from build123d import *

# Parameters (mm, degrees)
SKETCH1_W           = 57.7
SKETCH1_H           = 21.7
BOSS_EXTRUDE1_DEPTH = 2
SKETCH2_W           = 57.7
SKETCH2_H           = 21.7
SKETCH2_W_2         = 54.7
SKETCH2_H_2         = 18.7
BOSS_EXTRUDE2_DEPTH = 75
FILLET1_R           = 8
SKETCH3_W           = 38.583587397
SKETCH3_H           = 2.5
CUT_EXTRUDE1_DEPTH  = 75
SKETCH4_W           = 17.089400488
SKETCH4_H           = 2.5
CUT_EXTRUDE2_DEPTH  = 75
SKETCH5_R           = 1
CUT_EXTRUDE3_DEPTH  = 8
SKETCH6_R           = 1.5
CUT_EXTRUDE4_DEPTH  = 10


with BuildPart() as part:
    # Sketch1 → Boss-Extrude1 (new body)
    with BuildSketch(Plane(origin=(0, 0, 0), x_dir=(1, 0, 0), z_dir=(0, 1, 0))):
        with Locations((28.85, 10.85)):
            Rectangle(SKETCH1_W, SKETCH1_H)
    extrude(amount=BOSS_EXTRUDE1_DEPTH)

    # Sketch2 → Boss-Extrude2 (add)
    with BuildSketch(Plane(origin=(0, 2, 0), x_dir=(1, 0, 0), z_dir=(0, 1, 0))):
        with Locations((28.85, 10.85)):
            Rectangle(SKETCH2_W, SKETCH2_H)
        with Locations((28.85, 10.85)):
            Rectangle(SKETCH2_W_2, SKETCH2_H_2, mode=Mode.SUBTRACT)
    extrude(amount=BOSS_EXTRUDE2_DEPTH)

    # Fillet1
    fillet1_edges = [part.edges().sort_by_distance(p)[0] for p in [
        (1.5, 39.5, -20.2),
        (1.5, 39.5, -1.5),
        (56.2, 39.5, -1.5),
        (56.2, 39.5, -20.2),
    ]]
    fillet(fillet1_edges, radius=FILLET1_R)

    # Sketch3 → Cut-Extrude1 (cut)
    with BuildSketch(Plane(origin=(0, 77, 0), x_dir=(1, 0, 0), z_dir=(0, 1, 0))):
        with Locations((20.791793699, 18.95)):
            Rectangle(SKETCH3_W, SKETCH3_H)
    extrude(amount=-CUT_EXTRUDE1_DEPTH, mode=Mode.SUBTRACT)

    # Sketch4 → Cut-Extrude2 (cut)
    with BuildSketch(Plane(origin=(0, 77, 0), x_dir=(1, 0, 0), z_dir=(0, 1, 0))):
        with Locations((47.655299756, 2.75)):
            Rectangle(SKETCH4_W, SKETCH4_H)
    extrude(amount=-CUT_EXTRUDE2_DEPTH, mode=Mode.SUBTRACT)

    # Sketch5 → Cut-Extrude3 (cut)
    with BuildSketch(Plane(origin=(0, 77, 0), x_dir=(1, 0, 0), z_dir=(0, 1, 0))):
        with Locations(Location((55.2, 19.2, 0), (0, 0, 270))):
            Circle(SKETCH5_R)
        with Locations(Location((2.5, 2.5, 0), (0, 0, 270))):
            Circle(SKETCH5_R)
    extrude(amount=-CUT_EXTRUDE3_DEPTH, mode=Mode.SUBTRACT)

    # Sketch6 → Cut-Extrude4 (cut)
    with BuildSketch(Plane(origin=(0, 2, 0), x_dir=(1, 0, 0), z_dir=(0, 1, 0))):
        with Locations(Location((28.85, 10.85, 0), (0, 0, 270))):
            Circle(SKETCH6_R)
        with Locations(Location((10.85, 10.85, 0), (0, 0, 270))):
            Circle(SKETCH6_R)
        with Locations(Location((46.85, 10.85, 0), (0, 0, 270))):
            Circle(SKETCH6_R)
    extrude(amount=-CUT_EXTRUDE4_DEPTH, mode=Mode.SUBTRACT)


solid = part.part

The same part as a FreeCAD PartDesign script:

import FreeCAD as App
import Part
import Sketcher
Q = App.Units.Quantity


def edges_at(feature, points):
    """Names of the edges that pass closest to the given points."""
    edges = feature.Shape.Edges
    near = lambda p: min(range(len(edges)), key=lambda i: edges[i].distToShape(Part.Vertex(*p))[0])
    return sorted({f"Edge{near(p) + 1}" for p in points})

doc = App.newDocument("Part")
body = doc.addObject("PartDesign::Body", "Body")

# Sketch on XZ plane
sketch1 = body.newObject("Sketcher::SketchObject", "Sketch")
sketch1.AttachmentSupport = (doc.getObject("XZ_Plane"), [""])
sketch1.MapMode = "FlatFace"
sketch1.addGeometry([
    Part.LineSegment(App.Vector(0, -22, 0), App.Vector(0, 0, 0)),
    Part.LineSegment(App.Vector(0, 0, 0), App.Vector(58, 0, 0)),
    Part.LineSegment(App.Vector(58, 0, 0), App.Vector(58, -22, 0)),
    Part.LineSegment(App.Vector(58, -22, 0), App.Vector(0, -22, 0)),
], False)
sketch1.addConstraint([
    Sketcher.Constraint("Coincident", 0, 2, 1, 1),
    Sketcher.Constraint("Coincident", 1, 2, 2, 1),
    Sketcher.Constraint("Coincident", 2, 2, 3, 1),
    Sketcher.Constraint("Coincident", 3, 2, 0, 1),
    Sketcher.Constraint("Vertical", 0),
    Sketcher.Constraint("Horizontal", 1),
    Sketcher.Constraint("Vertical", 2),
    Sketcher.Constraint("Horizontal", 3),
    Sketcher.Constraint("Coincident", 0, 2, -1, 1),
    Sketcher.Constraint("DistanceX", 1, 1, 1, 2, Q("57.7 mm")),
    Sketcher.Constraint("DistanceY", 0, 1, 0, 2, Q("21.7 mm")),
])
pad1 = body.newObject("PartDesign::Pad", "Pad")
pad1.Profile = sketch1
pad1.Length = 2
pad1.Reversed = True

# Sketch on XZ plane
sketch2 = body.newObject("Sketcher::SketchObject", "Sketch001")
sketch2.AttachmentSupport = (doc.getObject("XZ_Plane"), [""])
sketch2.MapMode = "FlatFace"
sketch2.AttachmentOffset = App.Placement(App.Vector(0, 0, -2), App.Rotation())
sketch2.addGeometry([
    Part.LineSegment(App.Vector(0, -22, 0), App.Vector(0, 0, 0)),  # 0
    Part.LineSegment(App.Vector(0, 0, 0), App.Vector(58, 0, 0)),  # 1
    Part.LineSegment(App.Vector(58, 0, 0), App.Vector(58, -22, 0)),  # 2
    Part.LineSegment(App.Vector(58, -22, 0), App.Vector(0, -22, 0)),  # 3
    Part.LineSegment(App.Vector(56, -2, 0), App.Vector(2, -2, 0)),  # 4
    Part.LineSegment(App.Vector(2, -2, 0), App.Vector(2, -20, 0)),  # 5
    Part.LineSegment(App.Vector(2, -20, 0), App.Vector(56, -20, 0)),  # 6
    Part.LineSegment(App.Vector(56, -20, 0), App.Vector(56, -2, 0)),  # 7
], False)
sketch2.addConstraint([
    Sketcher.Constraint("Coincident", 0, 2, 1, 1),
    Sketcher.Constraint("Coincident", 1, 2, 2, 1),
    Sketcher.Constraint("Coincident", 2, 2, 3, 1),
    Sketcher.Constraint("Coincident", 3, 2, 0, 1),
    Sketcher.Constraint("Coincident", 4, 2, 5, 1),
    Sketcher.Constraint("Coincident", 5, 2, 6, 1),
    Sketcher.Constraint("Coincident", 6, 2, 7, 1),
    Sketcher.Constraint("Coincident", 7, 2, 4, 1),
    Sketcher.Constraint("Vertical", 0),
    Sketcher.Constraint("Horizontal", 1),
    Sketcher.Constraint("Vertical", 2),
    Sketcher.Constraint("Horizontal", 3),
    Sketcher.Constraint("Horizontal", 4),
    Sketcher.Constraint("Vertical", 5),
    Sketcher.Constraint("Horizontal", 6),
    Sketcher.Constraint("Vertical", 7),
    Sketcher.Constraint("Coincident", 0, 2, -1, 1),
    Sketcher.Constraint("DistanceX", 1, 1, 1, 2, Q("57.7 mm")),
    Sketcher.Constraint("DistanceX", 4, 2, 4, 1, Q("54.7 mm")),
    Sketcher.Constraint("DistanceY", 0, 1, 0, 2, Q("21.7 mm")),
    Sketcher.Constraint("DistanceY", 5, 2, 5, 1, Q("18.7 mm")),
    Sketcher.Constraint("DistanceX", -1, 1, 4, 2, Q("1.5 mm")),
    Sketcher.Constraint("DistanceY", 4, 2, -1, 1, Q("1.5 mm")),
])
pad2 = body.newObject("PartDesign::Pad", "Pad001")
pad2.Profile = sketch2
pad2.Length = 75
pad2.Reversed = True
doc.recompute()

fillet = body.newObject("PartDesign::Fillet", "Fillet")
fillet.Base = (pad2, edges_at(pad2, [
    (1.5, 39.5, -20.2),
    (1.5, 39.5, -1.5),
    (56.2, 39.5, -1.5),
    (56.2, 39.5, -20.2),
]))
fillet.Radius = 8

# Sketch on XZ plane
sketch3 = body.newObject("Sketcher::SketchObject", "Sketch002")
sketch3.AttachmentSupport = (doc.getObject("XZ_Plane"), [""])
sketch3.MapMode = "FlatFace"
sketch3.AttachmentOffset = App.Placement(App.Vector(0, 0, -77), App.Rotation())
sketch3.addGeometry([
    Part.LineSegment(App.Vector(1.5, -20.2, 0), App.Vector(1.5, -17.7, 0)),
    Part.LineSegment(App.Vector(1.5, -17.7, 0), App.Vector(40.1, -17.7, 0)),
    Part.LineSegment(App.Vector(40.1, -17.7, 0), App.Vector(40.1, -20.2, 0)),
    Part.LineSegment(App.Vector(40.1, -20.2, 0), App.Vector(1.5, -20.2, 0)),
], False)
sketch3.addConstraint([
    Sketcher.Constraint("Coincident", 0, 2, 1, 1),
    Sketcher.Constraint("Coincident", 1, 2, 2, 1),
    Sketcher.Constraint("Coincident", 2, 2, 3, 1),
    Sketcher.Constraint("Coincident", 3, 2, 0, 1),
    Sketcher.Constraint("Vertical", 0),
    Sketcher.Constraint("Horizontal", 1),
    Sketcher.Constraint("Vertical", 2),
    Sketcher.Constraint("Horizontal", 3),
    Sketcher.Constraint("DistanceY", 0, 1, 0, 2, Q("2.5 mm")),
    Sketcher.Constraint("DistanceX", -1, 1, 0, 2, Q("1.5 mm")),
    Sketcher.Constraint("DistanceY", 0, 2, -1, 1, Q("17.7 mm")),
    Sketcher.Constraint("DistanceX", 1, 1, 1, 2, Q("38.583587 mm")),
])
pocket1 = body.newObject("PartDesign::Pocket", "Pocket")
pocket1.Profile = sketch3
pocket1.Length = 75
pocket1.Reversed = True

# Sketch on XZ plane
sketch4 = body.newObject("Sketcher::SketchObject", "Sketch003")
sketch4.AttachmentSupport = (doc.getObject("XZ_Plane"), [""])
sketch4.MapMode = "FlatFace"
sketch4.AttachmentOffset = App.Placement(App.Vector(0, 0, -77), App.Rotation())
sketch4.addGeometry([
    Part.LineSegment(App.Vector(39.1, -4, 0), App.Vector(39.1, -1.5, 0)),
    Part.LineSegment(App.Vector(39.1, -1.5, 0), App.Vector(56.2, -1.5, 0)),
    Part.LineSegment(App.Vector(56.2, -1.5, 0), App.Vector(56.2, -4, 0)),
    Part.LineSegment(App.Vector(56.2, -4, 0), App.Vector(39.1, -4, 0)),
], False)
sketch4.addConstraint([
    Sketcher.Constraint("Coincident", 0, 2, 1, 1),
    Sketcher.Constraint("Coincident", 1, 2, 2, 1),
    Sketcher.Constraint("Coincident", 2, 2, 3, 1),
    Sketcher.Constraint("Coincident", 3, 2, 0, 1),
    Sketcher.Constraint("Vertical", 0),
    Sketcher.Constraint("Horizontal", 1),
    Sketcher.Constraint("Vertical", 2),
    Sketcher.Constraint("Horizontal", 3),
    Sketcher.Constraint("DistanceY", 0, 1, 0, 2, Q("2.5 mm")),
    Sketcher.Constraint("DistanceY", 2, 2, -1, 1, Q("4 mm")),
    Sketcher.Constraint("DistanceX", -1, 1, 1, 2, Q("56.2 mm")),
    Sketcher.Constraint("DistanceX", 1, 1, 1, 2, Q("17.0894 mm")),
])
pocket2 = body.newObject("PartDesign::Pocket", "Pocket001")
pocket2.Profile = sketch4
pocket2.Length = 75
pocket2.Reversed = True

# Sketch on XZ plane
sketch5 = body.newObject("Sketcher::SketchObject", "Sketch004")
sketch5.AttachmentSupport = (doc.getObject("XZ_Plane"), [""])
sketch5.MapMode = "FlatFace"
sketch5.AttachmentOffset = App.Placement(App.Vector(0, 0, -77), App.Rotation())
sketch5.addGeometry([
    Part.Circle(App.Vector(55.2, -19.2, 0), App.Vector(0, 0, 1), 1),
    Part.Circle(App.Vector(2.5, -2.5, 0), App.Vector(0, 0, 1), 1),
], False)
sketch5.addConstraint([
    Sketcher.Constraint("Equal", 0, 1),
    Sketcher.Constraint("Diameter", 0, Q("2 mm")),
    Sketcher.Constraint("DistanceX", -1, 1, 0, 3, Q("55.2 mm")),
    Sketcher.Constraint("DistanceY", 0, 3, -1, 1, Q("19.2 mm")),
    Sketcher.Constraint("DistanceX", -1, 1, 1, 3, Q("2.5 mm")),
    Sketcher.Constraint("DistanceY", 1, 3, -1, 1, Q("2.5 mm")),
])
pocket3 = body.newObject("PartDesign::Pocket", "Pocket002")
pocket3.Profile = sketch5
pocket3.Length = 8
pocket3.Reversed = True

# Sketch on XZ plane
sketch6 = body.newObject("Sketcher::SketchObject", "Sketch005")
sketch6.AttachmentSupport = (doc.getObject("XZ_Plane"), [""])
sketch6.MapMode = "FlatFace"
sketch6.AttachmentOffset = App.Placement(App.Vector(0, 0, -2), App.Rotation())
sketch6.addGeometry([
    Part.Circle(App.Vector(28.9, -10.8, 0), App.Vector(0, 0, 1), 1.5),
    Part.Circle(App.Vector(10.8, -10.8, 0), App.Vector(0, 0, 1), 1.5),
    Part.Circle(App.Vector(46.9, -10.8, 0), App.Vector(0, 0, 1), 1.5),
], False)
sketch6.addConstraint([
    Sketcher.Constraint("Equal", 0, 1),
    Sketcher.Constraint("Equal", 1, 2),
    Sketcher.Constraint("Horizontal", 0, 3, 1, 3),
    Sketcher.Constraint("Horizontal", 1, 3, 2, 3),
    Sketcher.Constraint("Diameter", 0, Q("3 mm")),
    Sketcher.Constraint("DistanceX", 1, 3, 0, 3, Q("18 mm")),
    Sketcher.Constraint("DistanceX", 0, 3, 2, 3, Q("18 mm")),
    Sketcher.Constraint("DistanceX", -1, 1, 0, 3, Q("28.85 mm")),
    Sketcher.Constraint("DistanceY", 0, 3, -1, 1, Q("10.85 mm")),
])
pocket4 = body.newObject("PartDesign::Pocket", "Pocket003")
pocket4.Profile = sketch6
pocket4.Length = 10
pocket4.Reversed = True

doc.recompute()
